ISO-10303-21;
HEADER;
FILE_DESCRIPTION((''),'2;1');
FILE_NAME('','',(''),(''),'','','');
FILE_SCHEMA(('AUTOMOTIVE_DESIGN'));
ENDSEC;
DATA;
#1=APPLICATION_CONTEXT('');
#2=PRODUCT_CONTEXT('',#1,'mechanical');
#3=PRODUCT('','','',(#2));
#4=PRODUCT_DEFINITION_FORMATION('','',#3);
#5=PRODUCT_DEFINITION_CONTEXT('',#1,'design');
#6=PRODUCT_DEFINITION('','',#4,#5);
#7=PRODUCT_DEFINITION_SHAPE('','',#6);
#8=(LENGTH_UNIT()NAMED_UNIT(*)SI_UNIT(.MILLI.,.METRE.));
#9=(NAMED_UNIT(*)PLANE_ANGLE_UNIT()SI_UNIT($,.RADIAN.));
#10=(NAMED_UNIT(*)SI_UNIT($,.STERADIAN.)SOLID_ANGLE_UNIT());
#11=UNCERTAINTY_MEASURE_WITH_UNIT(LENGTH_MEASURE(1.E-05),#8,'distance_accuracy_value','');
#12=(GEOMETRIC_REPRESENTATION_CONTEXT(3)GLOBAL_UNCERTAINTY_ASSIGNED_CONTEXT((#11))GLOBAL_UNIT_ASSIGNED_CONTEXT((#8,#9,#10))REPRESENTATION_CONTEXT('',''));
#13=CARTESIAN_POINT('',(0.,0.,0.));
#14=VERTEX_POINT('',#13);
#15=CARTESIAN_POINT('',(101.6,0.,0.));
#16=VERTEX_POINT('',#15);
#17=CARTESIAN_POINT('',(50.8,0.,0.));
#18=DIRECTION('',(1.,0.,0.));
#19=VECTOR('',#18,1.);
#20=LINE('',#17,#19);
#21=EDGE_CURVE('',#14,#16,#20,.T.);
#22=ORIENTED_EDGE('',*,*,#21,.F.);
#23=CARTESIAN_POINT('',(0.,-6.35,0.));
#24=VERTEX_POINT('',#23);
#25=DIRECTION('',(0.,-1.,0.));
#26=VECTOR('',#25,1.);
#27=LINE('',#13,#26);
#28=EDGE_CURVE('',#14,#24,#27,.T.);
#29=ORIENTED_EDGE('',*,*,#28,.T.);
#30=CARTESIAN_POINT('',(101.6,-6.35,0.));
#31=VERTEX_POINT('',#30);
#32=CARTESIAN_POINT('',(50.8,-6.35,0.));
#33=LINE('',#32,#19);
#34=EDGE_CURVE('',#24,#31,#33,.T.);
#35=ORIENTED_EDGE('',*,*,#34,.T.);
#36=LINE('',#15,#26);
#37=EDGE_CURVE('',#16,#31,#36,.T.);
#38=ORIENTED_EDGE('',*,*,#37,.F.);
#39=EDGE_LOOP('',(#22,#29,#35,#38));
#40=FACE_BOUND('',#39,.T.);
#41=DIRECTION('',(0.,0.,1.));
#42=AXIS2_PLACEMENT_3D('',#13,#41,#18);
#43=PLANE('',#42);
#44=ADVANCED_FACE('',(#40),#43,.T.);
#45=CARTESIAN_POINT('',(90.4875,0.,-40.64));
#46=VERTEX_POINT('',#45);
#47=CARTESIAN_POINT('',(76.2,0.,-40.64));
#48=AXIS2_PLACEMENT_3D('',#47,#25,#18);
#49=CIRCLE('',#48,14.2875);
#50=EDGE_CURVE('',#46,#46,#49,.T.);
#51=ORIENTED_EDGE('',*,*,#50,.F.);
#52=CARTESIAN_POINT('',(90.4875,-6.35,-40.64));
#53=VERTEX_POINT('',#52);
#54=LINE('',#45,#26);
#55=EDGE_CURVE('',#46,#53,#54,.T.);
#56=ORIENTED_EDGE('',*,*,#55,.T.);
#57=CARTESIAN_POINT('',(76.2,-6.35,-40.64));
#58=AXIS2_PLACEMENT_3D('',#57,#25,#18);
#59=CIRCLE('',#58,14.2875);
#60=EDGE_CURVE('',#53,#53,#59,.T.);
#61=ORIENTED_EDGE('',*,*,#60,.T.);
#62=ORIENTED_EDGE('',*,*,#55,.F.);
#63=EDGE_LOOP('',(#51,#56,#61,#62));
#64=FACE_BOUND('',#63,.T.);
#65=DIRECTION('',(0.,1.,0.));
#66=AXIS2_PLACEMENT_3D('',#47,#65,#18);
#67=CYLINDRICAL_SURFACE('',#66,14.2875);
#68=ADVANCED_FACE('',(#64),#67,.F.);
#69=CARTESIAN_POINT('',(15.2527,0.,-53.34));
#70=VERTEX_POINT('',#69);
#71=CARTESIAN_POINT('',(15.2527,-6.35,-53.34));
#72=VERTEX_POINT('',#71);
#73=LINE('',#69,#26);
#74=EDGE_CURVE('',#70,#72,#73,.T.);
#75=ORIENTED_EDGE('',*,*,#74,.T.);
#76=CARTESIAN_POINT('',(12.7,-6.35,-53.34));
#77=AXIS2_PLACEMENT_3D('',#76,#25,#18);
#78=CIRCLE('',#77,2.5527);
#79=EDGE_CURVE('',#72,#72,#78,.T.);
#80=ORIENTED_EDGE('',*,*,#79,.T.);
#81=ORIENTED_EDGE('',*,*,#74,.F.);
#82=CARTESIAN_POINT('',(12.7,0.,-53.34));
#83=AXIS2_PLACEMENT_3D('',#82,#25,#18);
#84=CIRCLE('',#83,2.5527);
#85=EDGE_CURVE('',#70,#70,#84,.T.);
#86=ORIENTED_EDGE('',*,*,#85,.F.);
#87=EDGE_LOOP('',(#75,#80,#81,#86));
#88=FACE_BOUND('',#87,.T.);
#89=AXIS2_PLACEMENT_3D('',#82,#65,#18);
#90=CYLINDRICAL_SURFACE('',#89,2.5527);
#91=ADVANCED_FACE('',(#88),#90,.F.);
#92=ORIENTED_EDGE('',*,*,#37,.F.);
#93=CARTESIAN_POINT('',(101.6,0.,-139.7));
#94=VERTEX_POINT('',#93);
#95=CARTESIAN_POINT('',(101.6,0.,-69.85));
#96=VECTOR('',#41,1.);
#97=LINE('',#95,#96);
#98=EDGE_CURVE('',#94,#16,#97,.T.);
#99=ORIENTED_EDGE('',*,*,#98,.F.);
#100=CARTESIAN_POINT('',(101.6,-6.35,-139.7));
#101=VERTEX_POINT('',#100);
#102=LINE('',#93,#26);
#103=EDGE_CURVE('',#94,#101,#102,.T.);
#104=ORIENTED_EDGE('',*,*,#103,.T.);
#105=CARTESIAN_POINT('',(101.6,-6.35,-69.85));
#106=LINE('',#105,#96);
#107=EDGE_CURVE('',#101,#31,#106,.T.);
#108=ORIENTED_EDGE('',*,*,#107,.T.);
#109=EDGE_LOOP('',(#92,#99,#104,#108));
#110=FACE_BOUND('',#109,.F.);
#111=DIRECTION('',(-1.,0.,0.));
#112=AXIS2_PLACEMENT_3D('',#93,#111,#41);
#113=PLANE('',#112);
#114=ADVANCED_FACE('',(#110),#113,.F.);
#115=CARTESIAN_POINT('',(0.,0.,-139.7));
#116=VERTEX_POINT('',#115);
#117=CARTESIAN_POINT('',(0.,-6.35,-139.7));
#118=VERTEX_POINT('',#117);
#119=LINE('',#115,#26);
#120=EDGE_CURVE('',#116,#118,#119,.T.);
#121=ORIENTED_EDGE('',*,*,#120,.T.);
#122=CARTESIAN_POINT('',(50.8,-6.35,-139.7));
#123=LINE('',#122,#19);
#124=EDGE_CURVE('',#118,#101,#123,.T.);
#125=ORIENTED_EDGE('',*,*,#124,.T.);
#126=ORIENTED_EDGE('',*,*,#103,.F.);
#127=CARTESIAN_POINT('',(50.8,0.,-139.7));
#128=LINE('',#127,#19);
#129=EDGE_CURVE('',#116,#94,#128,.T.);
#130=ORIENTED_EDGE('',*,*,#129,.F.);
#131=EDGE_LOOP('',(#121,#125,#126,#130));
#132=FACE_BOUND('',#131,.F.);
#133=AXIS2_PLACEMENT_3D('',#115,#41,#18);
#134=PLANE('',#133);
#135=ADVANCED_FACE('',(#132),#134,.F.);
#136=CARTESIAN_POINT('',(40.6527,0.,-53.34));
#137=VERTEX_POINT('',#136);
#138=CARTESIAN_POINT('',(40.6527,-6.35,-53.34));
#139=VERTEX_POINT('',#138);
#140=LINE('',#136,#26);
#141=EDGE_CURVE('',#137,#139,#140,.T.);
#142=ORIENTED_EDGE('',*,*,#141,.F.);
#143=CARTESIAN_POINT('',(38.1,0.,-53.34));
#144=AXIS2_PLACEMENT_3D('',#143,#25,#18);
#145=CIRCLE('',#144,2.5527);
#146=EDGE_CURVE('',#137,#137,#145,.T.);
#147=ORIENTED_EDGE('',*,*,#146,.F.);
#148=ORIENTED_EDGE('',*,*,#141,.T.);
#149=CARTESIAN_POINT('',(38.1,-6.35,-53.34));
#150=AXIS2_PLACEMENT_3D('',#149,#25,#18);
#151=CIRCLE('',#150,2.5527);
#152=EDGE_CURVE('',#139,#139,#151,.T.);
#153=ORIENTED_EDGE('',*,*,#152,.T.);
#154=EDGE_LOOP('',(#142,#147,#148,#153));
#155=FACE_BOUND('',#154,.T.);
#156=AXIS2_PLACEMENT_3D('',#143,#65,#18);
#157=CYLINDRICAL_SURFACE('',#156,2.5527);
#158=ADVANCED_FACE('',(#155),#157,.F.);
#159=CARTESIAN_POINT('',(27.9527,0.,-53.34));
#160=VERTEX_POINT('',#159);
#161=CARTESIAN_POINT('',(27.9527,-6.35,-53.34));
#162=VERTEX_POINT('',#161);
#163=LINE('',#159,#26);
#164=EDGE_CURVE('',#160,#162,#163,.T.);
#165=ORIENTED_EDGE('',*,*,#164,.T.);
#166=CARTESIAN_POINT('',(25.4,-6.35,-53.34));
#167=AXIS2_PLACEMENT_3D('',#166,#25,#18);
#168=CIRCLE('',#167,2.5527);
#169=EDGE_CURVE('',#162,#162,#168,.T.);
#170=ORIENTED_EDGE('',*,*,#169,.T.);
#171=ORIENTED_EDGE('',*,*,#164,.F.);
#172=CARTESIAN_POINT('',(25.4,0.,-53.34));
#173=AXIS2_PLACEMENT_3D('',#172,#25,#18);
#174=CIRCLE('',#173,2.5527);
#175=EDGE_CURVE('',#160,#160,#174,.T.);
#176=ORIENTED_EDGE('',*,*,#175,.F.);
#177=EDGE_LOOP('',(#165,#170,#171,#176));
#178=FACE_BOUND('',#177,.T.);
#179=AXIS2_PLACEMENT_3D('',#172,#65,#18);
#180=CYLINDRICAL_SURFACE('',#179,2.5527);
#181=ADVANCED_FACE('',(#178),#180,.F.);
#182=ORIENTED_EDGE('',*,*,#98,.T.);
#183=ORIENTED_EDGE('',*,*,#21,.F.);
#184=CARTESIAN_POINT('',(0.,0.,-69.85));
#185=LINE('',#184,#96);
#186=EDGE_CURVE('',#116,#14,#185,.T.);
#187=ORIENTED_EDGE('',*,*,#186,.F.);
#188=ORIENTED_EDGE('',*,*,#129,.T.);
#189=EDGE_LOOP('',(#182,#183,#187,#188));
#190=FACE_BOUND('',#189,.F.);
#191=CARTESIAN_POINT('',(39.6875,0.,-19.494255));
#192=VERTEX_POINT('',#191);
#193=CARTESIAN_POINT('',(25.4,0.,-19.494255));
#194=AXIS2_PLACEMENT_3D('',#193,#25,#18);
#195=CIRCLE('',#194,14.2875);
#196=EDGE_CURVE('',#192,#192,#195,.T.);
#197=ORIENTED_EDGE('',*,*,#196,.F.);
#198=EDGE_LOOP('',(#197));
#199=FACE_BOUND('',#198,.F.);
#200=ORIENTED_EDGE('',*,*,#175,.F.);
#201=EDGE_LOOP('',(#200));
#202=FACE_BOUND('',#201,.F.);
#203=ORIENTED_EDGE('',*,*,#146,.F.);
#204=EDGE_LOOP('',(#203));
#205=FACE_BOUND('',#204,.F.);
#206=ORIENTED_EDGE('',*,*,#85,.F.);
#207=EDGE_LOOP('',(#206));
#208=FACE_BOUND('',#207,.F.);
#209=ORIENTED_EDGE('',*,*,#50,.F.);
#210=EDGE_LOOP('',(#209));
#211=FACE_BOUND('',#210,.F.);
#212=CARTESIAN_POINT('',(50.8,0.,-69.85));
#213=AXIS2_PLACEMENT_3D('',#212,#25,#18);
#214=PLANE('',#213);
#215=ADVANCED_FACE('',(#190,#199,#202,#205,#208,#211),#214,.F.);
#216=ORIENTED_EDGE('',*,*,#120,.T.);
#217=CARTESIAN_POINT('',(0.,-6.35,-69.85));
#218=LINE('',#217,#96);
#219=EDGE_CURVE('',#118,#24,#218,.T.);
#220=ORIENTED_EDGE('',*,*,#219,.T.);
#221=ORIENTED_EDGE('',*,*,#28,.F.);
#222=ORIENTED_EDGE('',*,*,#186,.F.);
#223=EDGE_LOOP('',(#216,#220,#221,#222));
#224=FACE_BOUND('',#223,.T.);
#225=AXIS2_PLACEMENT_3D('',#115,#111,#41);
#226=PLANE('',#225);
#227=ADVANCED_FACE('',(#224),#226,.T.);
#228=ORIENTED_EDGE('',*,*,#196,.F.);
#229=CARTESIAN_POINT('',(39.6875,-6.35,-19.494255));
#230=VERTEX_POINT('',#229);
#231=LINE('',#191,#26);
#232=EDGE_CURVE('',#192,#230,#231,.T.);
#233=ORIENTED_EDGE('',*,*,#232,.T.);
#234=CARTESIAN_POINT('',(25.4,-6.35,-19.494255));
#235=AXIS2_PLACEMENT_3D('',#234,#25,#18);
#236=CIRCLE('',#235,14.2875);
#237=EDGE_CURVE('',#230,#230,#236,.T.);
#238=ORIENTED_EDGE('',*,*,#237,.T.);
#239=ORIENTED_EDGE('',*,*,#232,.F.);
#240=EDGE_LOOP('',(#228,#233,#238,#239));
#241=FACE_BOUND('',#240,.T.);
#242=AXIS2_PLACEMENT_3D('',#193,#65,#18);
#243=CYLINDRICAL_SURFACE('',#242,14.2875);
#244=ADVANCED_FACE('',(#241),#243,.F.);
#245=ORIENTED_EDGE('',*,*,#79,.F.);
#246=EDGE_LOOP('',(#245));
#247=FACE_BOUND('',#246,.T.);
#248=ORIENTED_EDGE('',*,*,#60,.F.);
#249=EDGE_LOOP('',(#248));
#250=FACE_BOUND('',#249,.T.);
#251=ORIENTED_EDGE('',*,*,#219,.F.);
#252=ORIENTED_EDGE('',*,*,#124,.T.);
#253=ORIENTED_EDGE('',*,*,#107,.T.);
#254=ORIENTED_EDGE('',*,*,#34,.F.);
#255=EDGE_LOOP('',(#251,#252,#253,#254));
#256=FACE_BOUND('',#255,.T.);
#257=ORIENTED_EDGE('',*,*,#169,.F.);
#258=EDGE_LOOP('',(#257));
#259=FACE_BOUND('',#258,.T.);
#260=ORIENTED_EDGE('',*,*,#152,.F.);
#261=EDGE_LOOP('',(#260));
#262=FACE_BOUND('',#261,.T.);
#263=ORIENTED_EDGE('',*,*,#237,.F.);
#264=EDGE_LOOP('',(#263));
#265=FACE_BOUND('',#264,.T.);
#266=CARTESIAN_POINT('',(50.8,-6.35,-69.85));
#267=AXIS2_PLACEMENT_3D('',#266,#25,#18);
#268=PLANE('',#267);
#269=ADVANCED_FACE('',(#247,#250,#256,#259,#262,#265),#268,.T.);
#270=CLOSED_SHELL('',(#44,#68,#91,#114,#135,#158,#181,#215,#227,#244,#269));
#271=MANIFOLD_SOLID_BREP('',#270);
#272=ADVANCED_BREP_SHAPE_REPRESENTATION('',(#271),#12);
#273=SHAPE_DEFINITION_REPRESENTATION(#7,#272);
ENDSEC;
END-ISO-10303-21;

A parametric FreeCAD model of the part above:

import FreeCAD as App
import Part
import Sketcher

V = App.Vector
Q = App.Units.Quantity


def add_polygon(sketch, points):
    """Adds a closed chain of lines whose ends are joined by coincident constraints."""
    first, n = sketch.GeometryCount, len(points)
    for a, b in zip(points, points[1:] + points[:1]):
        sketch.addGeometry(Part.LineSegment(App.Vector(*a, 0), App.Vector(*b, 0)), False)
    for i in range(n):
        sketch.addConstraint(Sketcher.Constraint("Coincident", first + i, 2, first + (i + 1) % n, 1))

doc = App.newDocument("Part")
body = doc.addObject("PartDesign::Body", "Body")

# Sketch on XZ plane
sketch1 = body.newObject("Sketcher::SketchObject", "Sketch")
sketch1.AttachmentSupport = (doc.getObject("XZ_Plane"), [""])
sketch1.MapMode = "FlatFace"
add_polygon(sketch1, [(0, 0), (0, -139.7), (101.6, -139.7), (101.6, 0)])  # lines 0-3
sketch1.addGeometry(Part.Circle(V(12.7, -53.3, 0), V(0, 0, 1), 2.6), False)  # 4
sketch1.addGeometry(Part.Circle(V(25.4, -53.3, 0), V(0, 0, 1), 2.6), False)  # 5
sketch1.addGeometry(Part.Circle(V(38.1, -53.3, 0), V(0, 0, 1), 2.6), False)  # 6
sketch1.addGeometry(Part.Circle(V(76.2, -40.6, 0), V(0, 0, 1), 14.3), False)  # 7
sketch1.addGeometry(Part.Circle(V(25.4, -19.5, 0), V(0, 0, 1), 14.3), False)  # 8
sketch1.addConstraint([
    Sketcher.Constraint("Vertical", 0),
    Sketcher.Constraint("Horizontal", 1),
    Sketcher.Constraint("Vertical", 2),
    Sketcher.Constraint("Horizontal", 3),
    Sketcher.Constraint("Coincident", 3, 2, -1, 1),
    Sketcher.Constraint("Equal", 4, 5),
    Sketcher.Constraint("Equal", 5, 6),
    Sketcher.Constraint("Equal", 7, 8),
    Sketcher.Constraint("Horizontal", 4, 3, 5, 3),
    Sketcher.Constraint("Horizontal", 5, 3, 6, 3),
    Sketcher.Constraint("Vertical", 5, 3, 8, 3),
    Sketcher.Constraint("DistanceX", 1, 1, 1, 2, Q("4 in")),
    Sketcher.Constraint("Diameter", 4, Q("0.201 in")),
    Sketcher.Constraint("Diameter", 7, Q("1.125 in")),
    Sketcher.Constraint("DistanceY", 0, 2, 0, 1, Q("5.5 in")),
    Sketcher.Constraint("DistanceX", -1, 1, 5, 3, Q("1 in")),
    Sketcher.Constraint("DistanceX", -1, 1, 7, 3, Q("3 in")),
    Sketcher.Constraint("DistanceX", 4, 3, 6, 3, Q("1 in")),
    Sketcher.Constraint("DistanceX", -1, 1, 4, 3, Q("0.5 in")),
    Sketcher.Constraint("DistanceY", 4, 3, -1, 1, Q("2.1 in")),
    Sketcher.Constraint("DistanceY", 7, 3, -1, 1, Q("1.6 in")),
    Sketcher.Constraint("DistanceY", 8, 3, -1, 1, Q("19.494255 mm")),
])
pad1 = body.newObject("PartDesign::Pad", "Pad")
pad1.Profile = sketch1
pad1.Length = Q("0.25 in")

doc.recompute()
